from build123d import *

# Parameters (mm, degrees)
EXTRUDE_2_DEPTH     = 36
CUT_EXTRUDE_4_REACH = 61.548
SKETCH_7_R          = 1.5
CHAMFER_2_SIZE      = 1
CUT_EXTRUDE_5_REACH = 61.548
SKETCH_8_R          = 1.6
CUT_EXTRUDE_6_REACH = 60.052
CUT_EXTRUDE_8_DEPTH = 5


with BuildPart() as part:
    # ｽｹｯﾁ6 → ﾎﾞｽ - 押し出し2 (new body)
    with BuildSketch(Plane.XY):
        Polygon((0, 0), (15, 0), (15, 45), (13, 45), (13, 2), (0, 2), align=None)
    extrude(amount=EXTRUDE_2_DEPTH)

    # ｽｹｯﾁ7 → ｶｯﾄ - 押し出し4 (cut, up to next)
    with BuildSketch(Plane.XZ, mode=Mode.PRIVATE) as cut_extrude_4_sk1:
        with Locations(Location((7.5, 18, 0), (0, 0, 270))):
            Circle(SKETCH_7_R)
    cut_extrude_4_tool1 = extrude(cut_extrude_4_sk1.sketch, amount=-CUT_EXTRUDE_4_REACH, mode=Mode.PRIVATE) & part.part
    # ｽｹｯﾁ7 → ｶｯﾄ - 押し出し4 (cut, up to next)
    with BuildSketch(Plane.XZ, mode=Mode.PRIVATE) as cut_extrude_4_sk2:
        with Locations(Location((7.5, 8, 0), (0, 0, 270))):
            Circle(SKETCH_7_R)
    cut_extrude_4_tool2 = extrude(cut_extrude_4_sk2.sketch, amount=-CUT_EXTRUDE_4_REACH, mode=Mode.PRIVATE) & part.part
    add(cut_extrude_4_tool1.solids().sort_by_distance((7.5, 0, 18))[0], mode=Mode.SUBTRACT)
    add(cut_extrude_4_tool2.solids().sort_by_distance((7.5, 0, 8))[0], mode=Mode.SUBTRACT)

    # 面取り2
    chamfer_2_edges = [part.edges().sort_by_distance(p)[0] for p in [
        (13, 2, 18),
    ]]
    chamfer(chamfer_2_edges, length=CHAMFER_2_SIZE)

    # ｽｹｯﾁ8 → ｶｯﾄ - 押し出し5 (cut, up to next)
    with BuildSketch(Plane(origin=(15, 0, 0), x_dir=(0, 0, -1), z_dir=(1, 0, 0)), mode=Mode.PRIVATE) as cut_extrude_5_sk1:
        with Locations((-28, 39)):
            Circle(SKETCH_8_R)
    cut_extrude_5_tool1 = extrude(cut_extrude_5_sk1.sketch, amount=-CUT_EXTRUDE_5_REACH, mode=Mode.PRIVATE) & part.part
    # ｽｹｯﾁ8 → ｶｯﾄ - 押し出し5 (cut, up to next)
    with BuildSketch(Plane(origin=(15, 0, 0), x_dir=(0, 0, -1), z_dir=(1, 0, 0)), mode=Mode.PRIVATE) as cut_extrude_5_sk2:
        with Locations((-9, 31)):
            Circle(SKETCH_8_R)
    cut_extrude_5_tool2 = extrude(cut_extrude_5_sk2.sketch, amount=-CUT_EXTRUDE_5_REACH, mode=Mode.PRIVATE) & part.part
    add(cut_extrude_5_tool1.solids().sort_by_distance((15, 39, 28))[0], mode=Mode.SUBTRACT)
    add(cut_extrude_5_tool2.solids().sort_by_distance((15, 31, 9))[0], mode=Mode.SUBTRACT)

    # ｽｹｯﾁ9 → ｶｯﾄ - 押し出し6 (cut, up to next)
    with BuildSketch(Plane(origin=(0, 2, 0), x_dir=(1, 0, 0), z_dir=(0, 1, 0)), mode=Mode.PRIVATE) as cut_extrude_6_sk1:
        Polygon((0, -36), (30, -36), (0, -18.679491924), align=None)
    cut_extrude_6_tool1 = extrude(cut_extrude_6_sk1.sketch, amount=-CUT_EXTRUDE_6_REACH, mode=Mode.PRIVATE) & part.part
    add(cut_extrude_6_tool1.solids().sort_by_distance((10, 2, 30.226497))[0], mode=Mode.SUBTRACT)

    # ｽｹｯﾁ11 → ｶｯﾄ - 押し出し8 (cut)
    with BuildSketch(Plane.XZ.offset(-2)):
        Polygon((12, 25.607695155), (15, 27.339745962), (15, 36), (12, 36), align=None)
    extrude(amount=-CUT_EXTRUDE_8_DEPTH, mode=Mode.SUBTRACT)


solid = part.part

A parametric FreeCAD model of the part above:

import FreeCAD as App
import Part
import Sketcher
from FreeCAD import Vector
Q = App.Units.Quantity


def edges_at(feature, points):
    """Names of the edges that pass closest to the given points."""
    edges = feature.Shape.Edges
    near = lambda p: min(range(len(edges)), key=lambda i: edges[i].distToShape(Part.Vertex(*p))[0])
    return sorted({f"Edge{near(p) + 1}" for p in points})

doc = App.newDocument("Part")
body = doc.addObject("PartDesign::Body", "Body")

# Sketch on XY plane
sketch1 = doc.addObject("Sketcher::SketchObject", "Sketch")
body.addObject(sketch1)
sketch1.AttachmentSupport = (doc.XY_Plane, [""])
sketch1.MapMode = "FlatFace"
sketch1.addGeometry([
    Part.LineSegment(Vector(0, 0, 0), Vector(15, 0, 0)),  # 0
    Part.LineSegment(Vector(15, 0, 0), Vector(15, 45, 0)),  # 1
    Part.LineSegment(Vector(15, 45, 0), Vector(13, 45, 0)),  # 2
    Part.LineSegment(Vector(13, 45, 0), Vector(13, 2, 0)),  # 3
    Part.LineSegment(Vector(13, 2, 0), Vector(0, 2, 0)),  # 4
    Part.LineSegment(Vector(0, 2, 0), Vector(0, 0, 0)),  # 5
], False)
sketch1.addConstraint([
    Sketcher.Constraint("Coincident", 0, 2, 1, 1),
    Sketcher.Constraint("Coincident", 1, 2, 2, 1),
    Sketcher.Constraint("Coincident", 2, 2, 3, 1),
    Sketcher.Constraint("Coincident", 3, 2, 4, 1),
    Sketcher.Constraint("Coincident", 4, 2, 5, 1),
    Sketcher.Constraint("Coincident", 5, 2, 0, 1),
    Sketcher.Constraint("Horizontal", 0),
    Sketcher.Constraint("Vertical", 1),
    Sketcher.Constraint("Horizontal", 2),
    Sketcher.Constraint("Vertical", 3),
    Sketcher.Constraint("Horizontal", 4),
    Sketcher.Constraint("Vertical", 5),
    Sketcher.Constraint("Coincident", 5, 2, -1, 1),
    Sketcher.Constraint("Equal", 2, 5),
    Sketcher.Constraint("DistanceX", 0, 1, 0, 2, Q("15 mm")),
    Sketcher.Constraint("DistanceX", 2, 2, 2, 1, Q("2 mm")),
    Sketcher.Constraint("DistanceY", 1, 1, 1, 2, Q("45 mm")),
])
pad1 = doc.addObject("PartDesign::Pad", "Pad")
body.addObject(pad1)
pad1.Profile = sketch1
pad1.Length = 36

# Sketch on XZ plane
sketch2 = doc.addObject("Sketcher::SketchObject", "Sketch001")
body.addObject(sketch2)
sketch2.AttachmentSupport = (doc.XZ_Plane, [""])
sketch2.MapMode = "FlatFace"
sketch2.addGeometry(Part.Circle(Vector(7.5, 18, 0), Vector(0, 0, 1), 1.5), False)
sketch2.addConstraint([
    Sketcher.Constraint("Diameter", 0, Q("3 mm")),
    Sketcher.Constraint("DistanceY", -1, 1, 0, 3, Q("18 mm")),
    Sketcher.Constraint("DistanceX", -1, 1, 0, 3, Q("7.5 mm")),
])
pocket1 = doc.addObject("PartDesign::Pocket", "Pocket")
body.addObject(pocket1)
pocket1.Profile = sketch2
pocket1.Type = "UpToFirst"

# Sketch on XZ plane
sketch3 = doc.addObject("Sketcher::SketchObject", "Sketch002")
body.addObject(sketch3)
sketch3.AttachmentSupport = (doc.XZ_Plane, [""])
sketch3.MapMode = "FlatFace"
sketch3.addGeometry(Part.Circle(Vector(7.5, 8, 0), Vector(0, 0, 1), 1.5), False)
sketch3.addConstraint([
    Sketcher.Constraint("Diameter", 0, Q("3 mm")),
    Sketcher.Constraint("DistanceY", -1, 1, 0, 3, Q("8 mm")),
    Sketcher.Constraint("DistanceX", -1, 1, 0, 3, Q("7.5 mm")),
])
pocket2 = doc.addObject("PartDesign::Pocket", "Pocket001")
body.addObject(pocket2)
pocket2.Profile = sketch3
pocket2.Type = "UpToFirst"
doc.recompute()

chamfer = doc.addObject("PartDesign::Chamfer", "Chamfer")
body.addObject(chamfer)
chamfer.Base = (pocket2, edges_at(pocket2, [(13, 2, 18)]))
chamfer.Size = 1

# Sketch on YZ plane
sketch4 = doc.addObject("Sketcher::SketchObject", "Sketch003")
body.addObject(sketch4)
sketch4.AttachmentSupport = (doc.YZ_Plane, [""])
sketch4.MapMode = "FlatFace"
sketch4.AttachmentOffset = App.Placement(Vector(0, 0, 15), App.Rotation())
sketch4.addGeometry(Part.Circle(Vector(39, 28, 0), Vector(0, 0, 1), 1.6), False)
sketch4.addConstraint([
    Sketcher.Constraint("Diameter", 0, Q("3.2 mm")),
    Sketcher.Constraint("DistanceX", -1, 1, 0, 3, Q("39 mm")),
    Sketcher.Constraint("DistanceY", -1, 1, 0, 3, Q("28 mm")),
])
pocket3 = doc.addObject("PartDesign::Pocket", "Pocket002")
body.addObject(pocket3)
pocket3.Profile = sketch4
pocket3.Type = "UpToFirst"

# Sketch on YZ plane
sketch5 = doc.addObject("Sketcher::SketchObject", "Sketch004")
body.addObject(sketch5)
sketch5.AttachmentSupport = (doc.YZ_Plane, [""])
sketch5.MapMode = "FlatFace"
sketch5.AttachmentOffset = App.Placement(Vector(0, 0, 15), App.Rotation())
sketch5.addGeometry(Part.Circle(Vector(31, 9, 0), Vector(0, 0, 1), 1.6), False)
sketch5.addConstraint([
    Sketcher.Constraint("Diameter", 0, Q("3.2 mm")),
    Sketcher.Constraint("DistanceX", -1, 1, 0, 3, Q("31 mm")),
    Sketcher.Constraint("DistanceY", -1, 1, 0, 3, Q("9 mm")),
])
pocket4 = doc.addObject("PartDesign::Pocket", "Pocket003")
body.addObject(pocket4)
pocket4.Profile = sketch5
pocket4.Type = "UpToFirst"

# Sketch on XZ plane
sketch6 = doc.addObject("Sketcher::SketchObject", "Sketch005")
body.addObject(sketch6)
sketch6.AttachmentSupport = (doc.XZ_Plane, [""])
sketch6.MapMode = "FlatFace"
sketch6.AttachmentOffset = App.Placement(Vector(0, 0, -2), App.Rotation())
sketch6.addGeometry([
    Part.LineSegment(Vector(0, 36, 0), Vector(30, 36, 0)),
    Part.LineSegment(Vector(30, 36, 0), Vector(0, 18.679492, 0)),
    Part.LineSegment(Vector(0, 18.679492, 0), Vector(0, 36, 0)),
], False)
sketch6.addConstraint([
    Sketcher.Constraint("Coincident", 0, 2, 1, 1),
    Sketcher.Constraint("Coincident", 1, 2, 2, 1),
    Sketcher.Constraint("Coincident", 2, 2, 0, 1),
    Sketcher.Constraint("Horizontal", 0),
    Sketcher.Constraint("Vertical", 2),
    Sketcher.Constraint("PointOnObject", 1, 2, -2),
    Sketcher.Constraint("DistanceX", 0, 1, 0, 2, Q("30 mm")),
    Sketcher.Constraint("Angle", 1, Q("-150 deg")),
    Sketcher.Constraint("DistanceY", -1, 1, 0, 2, Q("36 mm")),
])
pocket5 = doc.addObject("PartDesign::Pocket", "Pocket004")
body.addObject(pocket5)
pocket5.Profile = sketch6
pocket5.Type = "UpToFirst"
pocket5.Reversed = True

# Sketch on XZ plane
sketch7 = doc.addObject("Sketcher::SketchObject", "Sketch006")
body.addObject(sketch7)
sketch7.AttachmentSupport = (doc.XZ_Plane, [""])
sketch7.MapMode = "FlatFace"
sketch7.AttachmentOffset = App.Placement(Vector(0, 0, -2), App.Rotation())
sketch7.addGeometry([
    Part.LineSegment(Vector(12, 25.607695, 0), Vector(15, 27.339746, 0)),
    Part.LineSegment(Vector(15, 27.339746, 0), Vector(15, 36, 0)),
    Part.LineSegment(Vector(15, 36, 0), Vector(12, 36, 0)),
    Part.LineSegment(Vector(12, 36, 0), Vector(12, 25.607695, 0)),
], False)
sketch7.addConstraint([
    Sketcher.Constraint("Coincident", 0, 2, 1, 1),
    Sketcher.Constraint("Coincident", 1, 2, 2, 1),
    Sketcher.Constraint("Coincident", 2, 2, 3, 1),
    Sketcher.Constraint("Coincident", 3, 2, 0, 1),
    Sketcher.Constraint("Vertical", 1),
    Sketcher.Constraint("Horizontal", 2),
    Sketcher.Constraint("Vertical", 3),
    Sketcher.Constraint("DistanceX", 2, 2, 2, 1, Q("3 mm")),
    Sketcher.Constraint("Angle", 0, Q("30 deg")),
    Sketcher.Constraint("DistanceX", -1, 1, 0, 2, Q("15 mm")),
    Sketcher.Constraint("DistanceY", -1, 1, 1, 2, Q("36 mm")),
    Sketcher.Constraint("DistanceY", 1, 1, 1, 2, Q("8.660254 mm")),
])
pocket6 = doc.addObject("PartDesign::Pocket", "Pocket005")
body.addObject(pocket6)
pocket6.Profile = sketch7
pocket6.Length = 5

doc.recompute()
